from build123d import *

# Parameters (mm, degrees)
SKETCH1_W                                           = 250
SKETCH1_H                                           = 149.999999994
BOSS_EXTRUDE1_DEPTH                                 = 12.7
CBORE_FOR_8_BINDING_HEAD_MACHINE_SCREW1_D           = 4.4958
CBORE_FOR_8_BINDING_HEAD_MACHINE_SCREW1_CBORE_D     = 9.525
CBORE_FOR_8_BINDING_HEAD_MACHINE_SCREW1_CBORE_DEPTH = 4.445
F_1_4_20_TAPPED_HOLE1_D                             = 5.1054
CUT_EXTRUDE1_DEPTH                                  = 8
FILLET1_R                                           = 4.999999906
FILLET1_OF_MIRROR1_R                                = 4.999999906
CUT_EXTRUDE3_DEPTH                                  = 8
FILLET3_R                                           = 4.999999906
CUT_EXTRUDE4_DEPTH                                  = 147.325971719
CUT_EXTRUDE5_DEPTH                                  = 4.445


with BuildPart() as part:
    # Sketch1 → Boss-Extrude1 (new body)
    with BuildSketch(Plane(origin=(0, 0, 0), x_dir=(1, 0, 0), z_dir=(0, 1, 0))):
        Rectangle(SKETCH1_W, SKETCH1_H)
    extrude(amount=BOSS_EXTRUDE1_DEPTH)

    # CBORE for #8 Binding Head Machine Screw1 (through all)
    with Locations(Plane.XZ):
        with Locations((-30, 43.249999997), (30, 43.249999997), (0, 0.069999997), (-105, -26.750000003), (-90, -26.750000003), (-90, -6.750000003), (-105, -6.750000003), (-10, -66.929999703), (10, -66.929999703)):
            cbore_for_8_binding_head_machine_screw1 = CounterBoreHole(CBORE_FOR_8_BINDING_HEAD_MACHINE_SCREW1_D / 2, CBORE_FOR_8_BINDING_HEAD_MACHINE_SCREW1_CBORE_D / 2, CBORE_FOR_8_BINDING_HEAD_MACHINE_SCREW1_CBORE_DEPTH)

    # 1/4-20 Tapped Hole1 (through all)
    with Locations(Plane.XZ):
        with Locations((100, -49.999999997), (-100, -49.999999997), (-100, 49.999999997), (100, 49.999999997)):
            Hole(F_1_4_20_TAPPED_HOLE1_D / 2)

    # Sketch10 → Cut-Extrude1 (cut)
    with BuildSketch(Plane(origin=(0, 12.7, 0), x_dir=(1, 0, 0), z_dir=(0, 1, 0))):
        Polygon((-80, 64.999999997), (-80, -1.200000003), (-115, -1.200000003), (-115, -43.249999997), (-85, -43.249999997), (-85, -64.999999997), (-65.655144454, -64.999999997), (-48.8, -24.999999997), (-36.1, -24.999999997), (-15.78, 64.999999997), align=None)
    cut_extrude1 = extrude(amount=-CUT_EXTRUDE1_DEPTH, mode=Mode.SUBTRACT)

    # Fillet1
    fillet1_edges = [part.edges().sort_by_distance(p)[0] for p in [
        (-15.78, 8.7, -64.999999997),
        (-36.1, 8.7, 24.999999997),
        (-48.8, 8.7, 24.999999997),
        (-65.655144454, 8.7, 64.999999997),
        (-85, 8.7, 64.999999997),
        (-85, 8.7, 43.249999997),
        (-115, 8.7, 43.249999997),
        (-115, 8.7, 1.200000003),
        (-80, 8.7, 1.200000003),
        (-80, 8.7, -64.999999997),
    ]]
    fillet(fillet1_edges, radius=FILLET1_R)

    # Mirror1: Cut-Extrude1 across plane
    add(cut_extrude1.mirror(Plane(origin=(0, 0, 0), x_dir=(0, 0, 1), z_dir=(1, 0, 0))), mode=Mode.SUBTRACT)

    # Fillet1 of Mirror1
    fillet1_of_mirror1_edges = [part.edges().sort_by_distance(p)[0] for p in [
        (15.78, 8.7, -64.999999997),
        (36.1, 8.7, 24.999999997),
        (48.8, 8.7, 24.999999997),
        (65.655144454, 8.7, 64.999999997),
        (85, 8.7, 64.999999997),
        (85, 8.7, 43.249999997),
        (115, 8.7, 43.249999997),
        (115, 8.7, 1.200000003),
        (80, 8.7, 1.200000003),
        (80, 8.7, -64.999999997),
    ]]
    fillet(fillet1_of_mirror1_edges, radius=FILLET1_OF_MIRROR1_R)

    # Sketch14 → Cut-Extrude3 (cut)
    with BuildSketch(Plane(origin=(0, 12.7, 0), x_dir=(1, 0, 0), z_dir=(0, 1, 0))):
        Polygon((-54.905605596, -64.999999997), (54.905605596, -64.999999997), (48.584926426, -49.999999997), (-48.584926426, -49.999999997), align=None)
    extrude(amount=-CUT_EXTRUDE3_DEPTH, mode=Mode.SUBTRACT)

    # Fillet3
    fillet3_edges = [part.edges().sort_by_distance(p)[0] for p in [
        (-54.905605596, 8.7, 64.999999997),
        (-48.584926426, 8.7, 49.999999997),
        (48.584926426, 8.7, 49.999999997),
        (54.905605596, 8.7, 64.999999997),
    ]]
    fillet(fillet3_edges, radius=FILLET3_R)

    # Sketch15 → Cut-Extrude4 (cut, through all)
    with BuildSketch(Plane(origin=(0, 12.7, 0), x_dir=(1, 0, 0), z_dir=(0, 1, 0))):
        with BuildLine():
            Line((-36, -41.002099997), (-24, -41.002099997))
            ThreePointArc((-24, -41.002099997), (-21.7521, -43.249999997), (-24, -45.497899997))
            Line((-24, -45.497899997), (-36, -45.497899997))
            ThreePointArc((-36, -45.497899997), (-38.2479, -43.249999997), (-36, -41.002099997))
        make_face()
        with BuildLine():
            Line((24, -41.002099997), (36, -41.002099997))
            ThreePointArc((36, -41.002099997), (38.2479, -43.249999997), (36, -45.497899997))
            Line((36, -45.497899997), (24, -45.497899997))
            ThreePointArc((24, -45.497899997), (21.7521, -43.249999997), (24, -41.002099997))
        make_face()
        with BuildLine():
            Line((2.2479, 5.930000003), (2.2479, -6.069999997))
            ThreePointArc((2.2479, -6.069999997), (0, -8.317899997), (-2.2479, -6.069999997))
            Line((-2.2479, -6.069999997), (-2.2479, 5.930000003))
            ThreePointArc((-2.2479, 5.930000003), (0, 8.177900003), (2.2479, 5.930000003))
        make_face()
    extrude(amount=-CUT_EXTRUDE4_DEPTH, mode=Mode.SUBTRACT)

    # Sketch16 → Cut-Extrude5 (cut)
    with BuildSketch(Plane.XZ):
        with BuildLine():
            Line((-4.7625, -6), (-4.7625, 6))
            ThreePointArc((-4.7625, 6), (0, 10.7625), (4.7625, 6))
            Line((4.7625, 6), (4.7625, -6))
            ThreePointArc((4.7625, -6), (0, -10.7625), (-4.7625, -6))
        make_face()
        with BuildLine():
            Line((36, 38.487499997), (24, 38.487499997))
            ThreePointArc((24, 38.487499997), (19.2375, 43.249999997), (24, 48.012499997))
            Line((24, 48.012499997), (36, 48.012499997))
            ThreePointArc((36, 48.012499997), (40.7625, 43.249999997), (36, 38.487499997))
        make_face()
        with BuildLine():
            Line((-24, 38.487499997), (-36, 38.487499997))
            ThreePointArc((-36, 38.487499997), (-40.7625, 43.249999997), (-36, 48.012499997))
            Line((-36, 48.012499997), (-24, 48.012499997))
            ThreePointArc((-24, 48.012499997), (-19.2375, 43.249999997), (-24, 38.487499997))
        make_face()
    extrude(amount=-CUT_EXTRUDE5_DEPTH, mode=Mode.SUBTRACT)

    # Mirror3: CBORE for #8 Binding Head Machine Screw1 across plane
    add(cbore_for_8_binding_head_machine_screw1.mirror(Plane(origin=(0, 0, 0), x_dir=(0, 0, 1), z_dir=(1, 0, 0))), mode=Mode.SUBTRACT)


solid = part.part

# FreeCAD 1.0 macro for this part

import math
import FreeCAD as App
import Part
import Sketcher
from FreeCAD import Vector
Q = App.Units.Quantity


def edges_at(feature, points):
    """Names of the edges that pass closest to the given points."""
    edges = feature.Shape.Edges
    near = lambda p: min(range(len(edges)), key=lambda i: edges[i].distToShape(Part.Vertex(*p))[0])
    return sorted({f"Edge{near(p) + 1}" for p in points})

doc = App.newDocument("Part")
body = doc.addObject("PartDesign::Body", "Body")

# Sketch on XZ plane
sketch1 = body.newObject("Sketcher::SketchObject", "Sketch")
sketch1.AttachmentSupport = (doc.getObject("XZ_Plane"), [""])
sketch1.MapMode = "FlatFace"
sketch1.addGeometry([
    Part.LineSegment(Vector(-125, -75, 0), Vector(-125, 75, 0)),
    Part.LineSegment(Vector(-125, 75, 0), Vector(125, 75, 0)),
    Part.LineSegment(Vector(125, 75, 0), Vector(125, -75, 0)),
    Part.LineSegment(Vector(125, -75, 0), Vector(-125, -75, 0)),
], False)
sketch1.addConstraint([
    Sketcher.Constraint("Coincident", 0, 2, 1, 1),
    Sketcher.Constraint("Coincident", 1, 2, 2, 1),
    Sketcher.Constraint("Coincident", 2, 2, 3, 1),
    Sketcher.Constraint("Coincident", 3, 2, 0, 1),
    Sketcher.Constraint("Vertical", 0),
    Sketcher.Constraint("Horizontal", 1),
    Sketcher.Constraint("Vertical", 2),
    Sketcher.Constraint("Horizontal", 3),
    Sketcher.Constraint("Symmetric", 0, 2, 2, 2, -1, 1),
    Sketcher.Constraint("DistanceX", 1, 1, 1, 2, Q("250 mm")),
    Sketcher.Constraint("DistanceY", 0, 1, 0, 2, Q("150 mm")),
])
pad1 = body.newObject("PartDesign::Pad", "Pad")
pad1.Profile = sketch1
pad1.Length = 12.7
pad1.Reversed = True

# Sketch on XZ plane
sketch2 = body.newObject("Sketcher::SketchObject", "Sketch001")
sketch2.AttachmentSupport = (doc.getObject("XZ_Plane"), [""])
sketch2.MapMode = "FlatFace"
sketch2.addGeometry([
    Part.Circle(Vector(-30, 43.2, 0), Vector(0, 0, 1), 2.2),  # 0
    Part.Circle(Vector(30, 43.2, 0), Vector(0, 0, 1), 2.2),  # 1
    Part.Circle(Vector(0, 0.1, 0), Vector(0, 0, 1), 2.2),  # 2
    Part.Circle(Vector(-105, -26.8, 0), Vector(0, 0, 1), 2.2),  # 3
    Part.Circle(Vector(-90, -26.8, 0), Vector(0, 0, 1), 2.2),  # 4
    Part.Circle(Vector(-90, -6.8, 0), Vector(0, 0, 1), 2.2),  # 5
    Part.Circle(Vector(-105, -6.8, 0), Vector(0, 0, 1), 2.2),  # 6
    Part.Circle(Vector(-10, -66.9, 0), Vector(0, 0, 1), 2.2),  # 7
    Part.Circle(Vector(10, -66.9, 0), Vector(0, 0, 1), 2.2),  # 8
], False)
sketch2.addConstraint([
    Sketcher.Constraint("Equal", 0, 1),
    Sketcher.Constraint("Equal", 1, 2),
    Sketcher.Constraint("Equal", 2, 3),
    Sketcher.Constraint("Equal", 3, 4),
    Sketcher.Constraint("Equal", 4, 5),
    Sketcher.Constraint("Equal", 5, 6),
    Sketcher.Constraint("Equal", 6, 7),
    Sketcher.Constraint("Equal", 7, 8),
    Sketcher.Constraint("Symmetric", 0, 3, 1, 3, -2),
    Sketcher.Constraint("Symmetric", 7, 3, 8, 3, -2),
    Sketcher.Constraint("PointOnObject", 2, 3, -2),
    Sketcher.Constraint("Horizontal", 3, 3, 4, 3),
    Sketcher.Constraint("Horizontal", 5, 3, 6, 3),
    Sketcher.Constraint("Vertical", 4, 3, 5, 3),
    Sketcher.Constraint("Vertical", 3, 3, 6, 3),
    Sketcher.Constraint("DistanceX", 0, 3, -1, 1, Q("30 mm")),
    Sketcher.Constraint("DistanceX", 3, 3, -1, 1, Q("105 mm")),
    Sketcher.Constraint("DistanceX", 4, 3, -1, 1, Q("90 mm")),
    Sketcher.Constraint("DistanceX", 7, 3, -1, 1, Q("10 mm")),
    Sketcher.Constraint("DistanceY", 3, 3, 0, 3, Q("70 mm")),
    Sketcher.Constraint("DistanceY", 4, 3, 5, 3, Q("20 mm")),
    Sketcher.Constraint("DistanceY", 7, 3, 2, 3, Q("67 mm")),
    Sketcher.Constraint("Diameter", 0, Q("4.4958 mm")),
    Sketcher.Constraint("DistanceY", -1, 1, 0, 3, Q("43.25 mm")),
    Sketcher.Constraint("DistanceY", -1, 1, 2, 3, Q("0.07 mm")),
])
doc.recompute()
hole = body.newObject("PartDesign::Hole", "Hole")
hole.Profile = sketch2
hole.ThreadType = "None"
hole.Diameter = 4.4958
hole.DepthType = "ThroughAll"
hole.HoleCutType = "Counterbore"
hole.HoleCutDiameter = 9.525
hole.HoleCutDepth = 4.445

# Sketch on XZ plane
sketch3 = body.newObject("Sketcher::SketchObject", "Sketch002")
sketch3.AttachmentSupport = (doc.getObject("XZ_Plane"), [""])
sketch3.MapMode = "FlatFace"
sketch3.addGeometry([
    Part.Circle(Vector(100, -50, 0), Vector(0, 0, 1), 2.6),
    Part.Circle(Vector(-100, -50, 0), Vector(0, 0, 1), 2.6),
    Part.Circle(Vector(-100, 50, 0), Vector(0, 0, 1), 2.6),
    Part.Circle(Vector(100, 50, 0), Vector(0, 0, 1), 2.6),
], False)
sketch3.addConstraint([
    Sketcher.Constraint("Equal", 0, 1),
    Sketcher.Constraint("Equal", 1, 2),
    Sketcher.Constraint("Equal", 2, 3),
    Sketcher.Constraint("Symmetric", 0, 3, 2, 3, -1, 1),
    Sketcher.Constraint("Symmetric", 1, 3, 3, 3, -1, 1),
    Sketcher.Constraint("Symmetric", 0, 3, 1, 3, -2),
    Sketcher.Constraint("DistanceX", -1, 1, 0, 3, Q("100 mm")),
    Sketcher.Constraint("DistanceY", 0, 3, -1, 1, Q("50 mm")),
    Sketcher.Constraint("Diameter", 0, Q("5.1054 mm")),
])
doc.recompute()
hole2 = body.newObject("PartDesign::Hole", "Hole001")
hole2.Profile = sketch3
hole2.ThreadType = "None"
hole2.Diameter = 5.1054
hole2.DepthType = "ThroughAll"

# Sketch on XZ plane
sketch4 = body.newObject("Sketcher::SketchObject", "Sketch003")
sketch4.AttachmentSupport = (doc.getObject("XZ_Plane"), [""])
sketch4.MapMode = "FlatFace"
sketch4.AttachmentOffset = App.Placement(Vector(0, 0, -12.7), App.Rotation())
sketch4.addGeometry([
    Part.LineSegment(Vector(-80, -65, 0), Vector(-80, 1, 0)),  # 0
    Part.LineSegment(Vector(-80, 1, 0), Vector(-115, 1, 0)),  # 1
    Part.LineSegment(Vector(-115, 1, 0), Vector(-115, 43, 0)),  # 2
    Part.LineSegment(Vector(-115, 43, 0), Vector(-85, 43, 0)),  # 3
    Part.LineSegment(Vector(-85, 43, 0), Vector(-85, 65, 0)),  # 4
    Part.LineSegment(Vector(-85, 65, 0), Vector(-66, 65, 0)),  # 5
    Part.LineSegment(Vector(-66, 65, 0), Vector(-49, 25, 0)),  # 6
    Part.LineSegment(Vector(-49, 25, 0), Vector(-36, 25, 0)),  # 7
    Part.LineSegment(Vector(-36, 25, 0), Vector(-16, -65, 0)),  # 8
    Part.LineSegment(Vector(-16, -65, 0), Vector(-80, -65, 0)),  # 9
], False)
sketch4.addConstraint([
    Sketcher.Constraint("Coincident", 0, 2, 1, 1),
    Sketcher.Constraint("Coincident", 1, 2, 2, 1),
    Sketcher.Constraint("Coincident", 2, 2, 3, 1),
    Sketcher.Constraint("Coincident", 3, 2, 4, 1),
    Sketcher.Constraint("Coincident", 4, 2, 5, 1),
    Sketcher.Constraint("Coincident", 5, 2, 6, 1),
    Sketcher.Constraint("Coincident", 6, 2, 7, 1),
    Sketcher.Constraint("Coincident", 7, 2, 8, 1),
    Sketcher.Constraint("Coincident", 8, 2, 9, 1),
    Sketcher.Constraint("Coincident", 9, 2, 0, 1),
    Sketcher.Constraint("Vertical", 0),
    Sketcher.Constraint("Horizontal", 1),
    Sketcher.Constraint("Vertical", 2),
    Sketcher.Constraint("Horizontal", 3),
    Sketcher.Constraint("Vertical", 4),
    Sketcher.Constraint("Horizontal", 5),
    Sketcher.Constraint("Horizontal", 7),
    Sketcher.Constraint("Horizontal", 9),
    Sketcher.Constraint("DistanceX", 1, 2, 1, 1, Q("35 mm")),
    Sketcher.Constraint("DistanceX", 3, 1, 3, 2, Q("30 mm")),
    Sketcher.Constraint("DistanceX", 7, 1, 7, 2, Q("12.7 mm")),
    Sketcher.Constraint("DistanceY", 0, 1, 0, 2, Q("66.2 mm")),
    Sketcher.Constraint("DistanceX", 0, 2, -1, 1, Q("80 mm")),
    Sketcher.Constraint("DistanceY", -1, 1, 4, 2, Q("65 mm")),
    Sketcher.Constraint("DistanceY", -1, 1, 6, 2, Q("25 mm")),
    Sketcher.Constraint("DistanceY", 8, 2, -1, 1, Q("65 mm")),
    Sketcher.Constraint("DistanceX", 9, 2, 9, 1, Q("64.22 mm")),
    Sketcher.Constraint("DistanceY", 2, 1, 2, 2, Q("42.05 mm")),
    Sketcher.Constraint("DistanceX", 6, 2, -1, 1, Q("48.8 mm")),
    Sketcher.Constraint("DistanceX", 5, 1, 5, 2, Q("19.344856 mm")),
])
pocket1 = body.newObject("PartDesign::Pocket", "Pocket")
pocket1.Profile = sketch4
pocket1.Length = 8
pocket1.Reversed = True
doc.recompute()

fillet = body.newObject("PartDesign::Fillet", "Fillet")
fillet.Base = (pocket1, edges_at(pocket1, [
    (-15.78, 8.7, -65),
    (-36.1, 8.7, 25),
    (-48.8, 8.7, 25),
    (-65.655, 8.7, 65),
    (-85, 8.7, 65),
    (-85, 8.7, 43.25),
    (-115, 8.7, 43.25),
    (-115, 8.7, 1.2),
    (-80, 8.7, 1.2),
    (-80, 8.7, -65),
]))
fillet.Radius = 5
doc.recompute()

mirrored = body.newObject("PartDesign::Mirrored", "Mirrored")
mirrored.Originals = [pocket1]
mirrored.MirrorPlane = (doc.getObject("YZ_Plane"), [""])
body.Tip = mirrored
doc.recompute()

fillet2 = body.newObject("PartDesign::Fillet", "Fillet001")
fillet2.Base = (mirrored, edges_at(mirrored, [
    (15.78, 8.7, -65),
    (36.1, 8.7, 25),
    (48.8, 8.7, 25),
    (65.655, 8.7, 65),
    (85, 8.7, 65),
    (85, 8.7, 43.25),
    (115, 8.7, 43.25),
    (115, 8.7, 1.2),
    (80, 8.7, 1.2),
    (80, 8.7, -65),
]))
fillet2.Radius = 5

# Sketch on XZ plane
sketch5 = body.newObject("Sketcher::SketchObject", "Sketch004")
sketch5.AttachmentSupport = (doc.getObject("XZ_Plane"), [""])
sketch5.MapMode = "FlatFace"
sketch5.AttachmentOffset = App.Placement(Vector(0, 0, -12.7), App.Rotation())
sketch5.addGeometry([
    Part.LineSegment(Vector(-55, 65, 0), Vector(55, 65, 0)),
    Part.LineSegment(Vector(55, 65, 0), Vector(49, 50, 0)),
    Part.LineSegment(Vector(49, 50, 0), Vector(-49, 50, 0)),
    Part.LineSegment(Vector(-49, 50, 0), Vector(-55, 65, 0)),
], False)
sketch5.addConstraint([
    Sketcher.Constraint("Coincident", 0, 2, 1, 1),
    Sketcher.Constraint("Coincident", 1, 2, 2, 1),
    Sketcher.Constraint("Coincident", 2, 2, 3, 1),
    Sketcher.Constraint("Coincident", 3, 2, 0, 1),
    Sketcher.Constraint("Horizontal", 0),
    Sketcher.Constraint("Horizontal", 2),
    Sketcher.Constraint("Equal", 1, 3),
    Sketcher.Constraint("DistanceY", -1, 1, 0, 2, Q("65 mm")),
    Sketcher.Constraint("DistanceY", -1, 1, 1, 2, Q("50 mm")),
    Sketcher.Constraint("DistanceX", 0, 1, 0, 2, Q("109.811211 mm")),
    Sketcher.Constraint("DistanceX", 2, 2, 2, 1, Q("97.169853 mm")),
    Sketcher.Constraint("DistanceX", -1, 1, 0, 2, Q("54.905606 mm")),
])
pocket2 = body.newObject("PartDesign::Pocket", "Pocket001")
pocket2.Profile = sketch5
pocket2.Length = 8
pocket2.Reversed = True
doc.recompute()

fillet3 = body.newObject("PartDesign::Fillet", "Fillet002")
fillet3.Base = (pocket2, edges_at(pocket2, [
    (-54.906, 8.7, 65),
    (-48.585, 8.7, 50),
    (48.585, 8.7, 50),
    (54.906, 8.7, 65),
]))
fillet3.Radius = 5

# Sketch on XZ plane
sketch6 = body.newObject("Sketcher::SketchObject", "Sketch005")
sketch6.AttachmentSupport = (doc.getObject("XZ_Plane"), [""])
sketch6.MapMode = "FlatFace"
sketch6.AttachmentOffset = App.Placement(Vector(0, 0, -12.7), App.Rotation())
sketch6.addGeometry([
    Part.LineSegment(Vector(-24, 41, 0), Vector(-36, 41, 0)),  # 0
    Part.ArcOfCircle(Part.Circle(Vector(-36, 43.2, 0), Vector(0, 0, 1), 2.2), math.radians(90), math.radians(270)),  # 1
    Part.LineSegment(Vector(-36, 45.5, 0), Vector(-24, 45.5, 0)),  # 2
    Part.ArcOfCircle(Part.Circle(Vector(-24, 43.2, 0), Vector(0, 0, 1), 2.2), math.radians(-90), math.radians(90)),  # 3
    Part.LineSegment(Vector(36, 41, 0), Vector(24, 41, 0)),  # 4
    Part.ArcOfCircle(Part.Circle(Vector(24, 43.2, 0), Vector(0, 0, 1), 2.2), math.radians(90), math.radians(270)),  # 5
    Part.LineSegment(Vector(24, 45.5, 0), Vector(36, 45.5, 0)),  # 6
    Part.ArcOfCircle(Part.Circle(Vector(36, 43.2, 0), Vector(0, 0, 1), 2.2), math.radians(-90), math.radians(90)),  # 7
    Part.LineSegment(Vector(2.2, 6.1, 0), Vector(2.2, -5.9, 0)),  # 8
    Part.ArcOfCircle(Part.Circle(Vector(0, -5.9, 0), Vector(0, 0, 1), 2.2), math.radians(180), math.radians(360)),  # 9
    Part.LineSegment(Vector(-2.2, -5.9, 0), Vector(-2.2, 6.1, 0)),  # 10
    Part.ArcOfCircle(Part.Circle(Vector(0, 6.1, 0), Vector(0, 0, 1), 2.2), math.radians(0), math.radians(180)),  # 11
], False)
sketch6.addConstraint([
    Sketcher.Constraint("Tangent", 0, 2, 1, 2),
    Sketcher.Constraint("Tangent", 1, 1, 2, 1),
    Sketcher.Constraint("Tangent", 2, 2, 3, 2),
    Sketcher.Constraint("Tangent", 3, 1, 0, 1),
    Sketcher.Constraint("Tangent", 4, 2, 5, 2),
    Sketcher.Constraint("Tangent", 5, 1, 6, 1),
    Sketcher.Constraint("Tangent", 6, 2, 7, 2),
    Sketcher.Constraint("Tangent", 7, 1, 4, 1),
    Sketcher.Constraint("Tangent", 8, 2, 9, 2),
    Sketcher.Constraint("Tangent", 9, 1, 10, 1),
    Sketcher.Constraint("Tangent", 10, 2, 11, 2),
    Sketcher.Constraint("Tangent", 11, 1, 8, 1),
    Sketcher.Constraint("Horizontal", 0),
    Sketcher.Constraint("Horizontal", 2),
    Sketcher.Constraint("Horizontal", 4),
    Sketcher.Constraint("Horizontal", 6),
    Sketcher.Constraint("Vertical", 8),
    Sketcher.Constraint("Vertical", 10),
    Sketcher.Constraint("Equal", 3, 5),
    Sketcher.Constraint("Equal", 7, 9),
    Sketcher.Constraint("Symmetric", 3, 3, 5, 3, -2),
    Sketcher.Constraint("PointOnObject", 9, 3, -2),
    Sketcher.Constraint("Equal", 2, 4),
    Sketcher.Constraint("Equal", 6, 8),
    Sketcher.Constraint("DistanceX", 0, 2, 0, 1, Q("12 mm")),
    Sketcher.Constraint("DistanceX", 1, 3, -1, 1, Q("36 mm")),
    Sketcher.Constraint("Radius", 1, Q("2.2479 mm")),
    Sketcher.Constraint("DistanceY", -1, 1, 1, 3, Q("43.25 mm")),
    Sketcher.Constraint("DistanceY", 9, 3, -1, 1, Q("5.93 mm")),
])
pocket3 = body.newObject("PartDesign::Pocket", "Pocket002")
pocket3.Profile = sketch6
pocket3.Type = "ThroughAll"
pocket3.Reversed = True

# Sketch on XZ plane
sketch7 = body.newObject("Sketcher::SketchObject", "Sketch006")
sketch7.AttachmentSupport = (doc.getObject("XZ_Plane"), [""])
sketch7.MapMode = "FlatFace"
sketch7.addGeometry([
    Part.LineSegment(Vector(-4.8, 6, 0), Vector(-4.8, -6, 0)),  # 0
    Part.ArcOfCircle(Part.Circle(Vector(0, -6, 0), Vector(0, 0, 1), 4.8), math.radians(180), math.radians(360)),  # 1
    Part.LineSegment(Vector(4.8, -6, 0), Vector(4.8, 6, 0)),  # 2
    Part.ArcOfCircle(Part.Circle(Vector(0, 6, 0), Vector(0, 0, 1), 4.8), math.radians(0), math.radians(180)),  # 3
    Part.LineSegment(Vector(24, 38.5, 0), Vector(36, 38.5, 0)),  # 4
    Part.ArcOfCircle(Part.Circle(Vector(36, 43.2, 0), Vector(0, 0, 1), 4.8), math.radians(-90), math.radians(90)),  # 5
    Part.LineSegment(Vector(36, 48, 0), Vector(24, 48, 0)),  # 6
    Part.ArcOfCircle(Part.Circle(Vector(24, 43.2, 0), Vector(0, 0, 1), 4.8), math.radians(90), math.radians(270)),  # 7
    Part.LineSegment(Vector(-36, 38.5, 0), Vector(-24, 38.5, 0)),  # 8
    Part.ArcOfCircle(Part.Circle(Vector(-24, 43.2, 0), Vector(0, 0, 1), 4.8), math.radians(-90), math.radians(90)),  # 9
    Part.LineSegment(Vector(-24, 48, 0), Vector(-36, 48, 0)),  # 10
    Part.ArcOfCircle(Part.Circle(Vector(-36, 43.2, 0), Vector(0, 0, 1), 4.8), math.radians(90), math.radians(270)),  # 11
], False)
sketch7.addConstraint([
    Sketcher.Constraint("Tangent", 0, 2, 1, 1),
    Sketcher.Constraint("Tangent", 1, 2, 2, 1),
    Sketcher.Constraint("Tangent", 2, 2, 3, 1),
    Sketcher.Constraint("Tangent", 3, 2, 0, 1),
    Sketcher.Constraint("Tangent", 4, 2, 5, 1),
    Sketcher.Constraint("Tangent", 5, 2, 6, 1),
    Sketcher.Constraint("Tangent", 6, 2, 7, 1),
    Sketcher.Constraint("Tangent", 7, 2, 4, 1),
    Sketcher.Constraint("Tangent", 8, 2, 9, 1),
    Sketcher.Constraint("Tangent", 9, 2, 10, 1),
    Sketcher.Constraint("Tangent", 10, 2, 11, 1),
    Sketcher.Constraint("Tangent", 11, 2, 8, 1),
    Sketcher.Constraint("Vertical", 0),
    Sketcher.Constraint("Vertical", 2),
    Sketcher.Constraint("Horizontal", 4),
    Sketcher.Constraint("Horizontal", 6),
    Sketcher.Constraint("Horizontal", 8),
    Sketcher.Constraint("Horizontal", 10),
    Sketcher.Constraint("Equal", 3, 5),
    Sketcher.Constraint("Equal", 7, 9),
    Sketcher.Constraint("Symmetric", 1, 3, 3, 3, -1, 1),
    Sketcher.Constraint("Symmetric", 7, 3, 9, 3, -2),
    Sketcher.Constraint("Equal", 6, 8),
    Sketcher.Constraint("Equal", 10, 0),
    Sketcher.Constraint("DistanceX", 4, 1, 4, 2, Q("12 mm")),
    Sketcher.Constraint("DistanceX", -1, 1, 5, 3, Q("36 mm")),
    Sketcher.Constraint("Radius", 1, Q("4.7625 mm")),
    Sketcher.Constraint("DistanceY", -1, 1, 5, 3, Q("43.25 mm")),
])
pocket4 = body.newObject("PartDesign::Pocket", "Pocket003")
pocket4.Profile = sketch7
pocket4.Length = 4.445
doc.recompute()

mirrored2 = body.newObject("PartDesign::Mirrored", "Mirrored001")
mirrored2.Originals = [hole]
mirrored2.MirrorPlane = (doc.getObject("YZ_Plane"), [""])
body.Tip = mirrored2

doc.recompute()
